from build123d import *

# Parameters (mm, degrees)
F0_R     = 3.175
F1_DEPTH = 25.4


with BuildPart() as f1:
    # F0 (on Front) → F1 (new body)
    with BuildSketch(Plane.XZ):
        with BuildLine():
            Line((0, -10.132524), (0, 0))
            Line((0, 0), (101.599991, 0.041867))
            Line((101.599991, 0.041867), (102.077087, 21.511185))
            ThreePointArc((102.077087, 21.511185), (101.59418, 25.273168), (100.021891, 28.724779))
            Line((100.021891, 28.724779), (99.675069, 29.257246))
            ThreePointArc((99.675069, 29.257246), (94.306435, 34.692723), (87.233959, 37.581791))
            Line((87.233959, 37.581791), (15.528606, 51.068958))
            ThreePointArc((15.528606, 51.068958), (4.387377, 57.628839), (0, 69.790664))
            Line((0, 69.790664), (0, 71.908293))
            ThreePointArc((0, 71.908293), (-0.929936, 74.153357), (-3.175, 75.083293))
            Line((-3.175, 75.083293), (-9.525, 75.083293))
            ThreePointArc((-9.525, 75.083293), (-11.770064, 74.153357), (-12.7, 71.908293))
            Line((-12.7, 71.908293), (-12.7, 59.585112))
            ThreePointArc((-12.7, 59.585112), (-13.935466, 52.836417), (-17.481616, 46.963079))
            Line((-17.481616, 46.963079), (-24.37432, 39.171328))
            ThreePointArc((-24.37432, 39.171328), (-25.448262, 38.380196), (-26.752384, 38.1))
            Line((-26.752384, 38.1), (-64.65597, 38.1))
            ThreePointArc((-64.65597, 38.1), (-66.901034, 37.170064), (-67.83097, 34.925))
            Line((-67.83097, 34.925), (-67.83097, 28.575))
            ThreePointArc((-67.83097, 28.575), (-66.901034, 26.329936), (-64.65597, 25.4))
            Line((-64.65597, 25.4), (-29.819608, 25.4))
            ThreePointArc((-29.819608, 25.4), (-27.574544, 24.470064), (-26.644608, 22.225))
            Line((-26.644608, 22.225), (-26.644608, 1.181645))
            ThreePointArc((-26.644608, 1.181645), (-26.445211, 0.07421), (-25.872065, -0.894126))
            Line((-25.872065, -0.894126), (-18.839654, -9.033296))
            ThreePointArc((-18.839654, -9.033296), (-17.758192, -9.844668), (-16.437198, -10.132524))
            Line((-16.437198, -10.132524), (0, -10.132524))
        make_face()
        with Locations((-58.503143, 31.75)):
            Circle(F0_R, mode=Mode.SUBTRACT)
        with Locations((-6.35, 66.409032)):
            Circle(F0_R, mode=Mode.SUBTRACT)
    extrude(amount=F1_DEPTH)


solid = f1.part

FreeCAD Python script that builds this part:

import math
import FreeCAD as App
import Part
import Sketcher

V = App.Vector
Q = App.Units.Quantity

doc = App.newDocument("Part")
body = doc.addObject("PartDesign::Body", "Body")

# Sketch on XZ plane
sketch1 = doc.addObject("Sketcher::SketchObject", "Sketch")
body.addObject(sketch1)
sketch1.AttachmentSupport = (doc.XZ_Plane, [""])
sketch1.MapMode = "FlatFace"
sketch1.addGeometry(Part.LineSegment(V(0, -10.132524, 0), V(0, 0, 0)), False)
sketch1.addGeometry(Part.LineSegment(V(0, 0, 0), V(101.599991, 0.041867, 0)), False)
sketch1.addGeometry(Part.LineSegment(V(101.599991, 0.041867, 0), V(102.077087, 21.511185, 0)), False)
sketch1.addGeometry(Part.ArcOfCircle(Part.Circle(V(89.380217, 21.793337, 0), V(0, 0, 1), 12.700004), math.radians(-1.273026), math.radians(33.078164)), False)
sketch1.addGeometry(Part.LineSegment(V(100.021891, 28.724779, 0), V(99.675069, 29.257246, 0)), False)
sketch1.addGeometry(Part.ArcOfCircle(Part.Circle(V(83.712568, 18.86009, 0), V(0, 0, 1), 19.049995), math.radians(33.078163), math.radians(79.347614)), False)
sketch1.addGeometry(Part.LineSegment(V(87.233959, 37.581791, 0), V(15.528606, 51.068958, 0)), False)
sketch1.addGeometry(Part.ArcOfCircle(Part.Circle(V(19.049999, 69.790664, 0), V(0, 0, 1), 19.049999), math.radians(179.999999), math.radians(259.34761)), False)
sketch1.addGeometry(Part.LineSegment(V(0, 69.790664, 0), V(0, 71.908293, 0)), False)
sketch1.addGeometry(Part.ArcOfCircle(Part.Circle(V(-3.175, 71.908293, 0), V(0, 0, 1), 3.175), math.radians(0.000002), math.radians(89.999998)), False)
sketch1.addGeometry(Part.LineSegment(V(-3.175, 75.083293, 0), V(-9.525, 75.083293, 0)), False)
sketch1.addGeometry(Part.ArcOfCircle(Part.Circle(V(-9.525, 71.908293, 0), V(0, 0, 1), 3.175), math.radians(90.000002), math.radians(179.999998)), False)
sketch1.addGeometry(Part.LineSegment(V(-12.7, 71.908293, 0), V(-12.7, 59.585112, 0)), False)
sketch1.addGeometry(Part.ArcOfCircle(Part.Circle(V(-31.749998, 59.585111, 0), V(0, 0, 1), 19.049998), math.radians(-41.496473), math.radians(0.000003)), False)
sketch1.addGeometry(Part.LineSegment(V(-17.481616, 46.963079, 0), V(-24.37432, 39.171328, 0)), False)
sketch1.addGeometry(Part.ArcOfCircle(Part.Circle(V(-26.752384, 41.275, 0), V(0, 0, 1), 3.175), math.radians(-89.999994), math.radians(-41.496469)), False)
sketch1.addGeometry(Part.LineSegment(V(-26.752384, 38.1, 0), V(-64.65597, 38.1, 0)), False)
sketch1.addGeometry(Part.ArcOfCircle(Part.Circle(V(-64.65597, 34.925, 0), V(0, 0, 1), 3.175), math.radians(90.000002), math.radians(179.999998)), False)
sketch1.addGeometry(Part.LineSegment(V(-67.83097, 34.925, 0), V(-67.83097, 28.575, 0)), False)
sketch1.addGeometry(Part.ArcOfCircle(Part.Circle(V(-64.65597, 28.575, 0), V(0, 0, 1), 3.175), math.radians(-179.999998), math.radians(-90.000002)), False)
sketch1.addGeometry(Part.LineSegment(V(-64.65597, 25.4, 0), V(-29.819608, 25.4, 0)), False)
sketch1.addGeometry(Part.ArcOfCircle(Part.Circle(V(-29.819608, 22.225, 0), V(0, 0, 1), 3.175), math.radians(0.000002), math.radians(89.999998)), False)
sketch1.addGeometry(Part.LineSegment(V(-26.644608, 22.225, 0), V(-26.644608, 1.181645, 0)), False)
sketch1.addGeometry(Part.ArcOfCircle(Part.Circle(V(-23.469609, 1.181645, 0), V(0, 0, 1), 3.174999), math.radians(179.999992), math.radians(220.827682)), False)
sketch1.addGeometry(Part.LineSegment(V(-25.872065, -0.894126, 0), V(-18.839654, -9.033296, 0)), False)
sketch1.addGeometry(Part.ArcOfCircle(Part.Circle(V(-16.437199, -6.957526, 0), V(0, 0, 1), 3.174998), math.radians(-139.172317), math.radians(-89.999989)), False)
sketch1.addGeometry(Part.LineSegment(V(-16.437198, -10.132524, 0), V(0, -10.132524, 0)), False)
sketch1.addGeometry(Part.Circle(V(-58.503143, 31.75, 0), V(0, 0, 1), 3.175), False)
sketch1.addGeometry(Part.Circle(V(-6.35, 66.409032, 0), V(0, 0, 1), 3.175), False)
sketch1.addConstraint(Sketcher.Constraint("Coincident", 0, 2, 1, 1))
sketch1.addConstraint(Sketcher.Constraint("Coincident", 1, 2, 2, 1))
sketch1.addConstraint(Sketcher.Constraint("Coincident", 2, 2, 3, 1))
sketch1.addConstraint(Sketcher.Constraint("Coincident", 3, 2, 4, 1))
sketch1.addConstraint(Sketcher.Constraint("Coincident", 4, 2, 5, 1))
sketch1.addConstraint(Sketcher.Constraint("Coincident", 5, 2, 6, 1))
sketch1.addConstraint(Sketcher.Constraint("Coincident", 6, 2, 7, 2))
sketch1.addConstraint(Sketcher.Constraint("Coincident", 7, 1, 8, 1))
sketch1.addConstraint(Sketcher.Constraint("Coincident", 8, 2, 9, 1))
sketch1.addConstraint(Sketcher.Constraint("Coincident", 9, 2, 10, 1))
sketch1.addConstraint(Sketcher.Constraint("Coincident", 10, 2, 11, 1))
sketch1.addConstraint(Sketcher.Constraint("Coincident", 11, 2, 12, 1))
sketch1.addConstraint(Sketcher.Constraint("Coincident", 12, 2, 13, 2))
sketch1.addConstraint(Sketcher.Constraint("Coincident", 13, 1, 14, 1))
sketch1.addConstraint(Sketcher.Constraint("Coincident", 14, 2, 15, 2))
sketch1.addConstraint(Sketcher.Constraint("Coincident", 15, 1, 16, 1))
sketch1.addConstraint(Sketcher.Constraint("Coincident", 16, 2, 17, 1))
sketch1.addConstraint(Sketcher.Constraint("Coincident", 17, 2, 18, 1))
sketch1.addConstraint(Sketcher.Constraint("Coincident", 18, 2, 19, 1))
sketch1.addConstraint(Sketcher.Constraint("Coincident", 19, 2, 20, 1))
sketch1.addConstraint(Sketcher.Constraint("Coincident", 20, 2, 21, 2))
sketch1.addConstraint(Sketcher.Constraint("Coincident", 21, 1, 22, 1))
sketch1.addConstraint(Sketcher.Constraint("Coincident", 22, 2, 23, 1))
sketch1.addConstraint(Sketcher.Constraint("Coincident", 23, 2, 24, 1))
sketch1.addConstraint(Sketcher.Constraint("Coincident", 24, 2, 25, 1))
sketch1.addConstraint(Sketcher.Constraint("Coincident", 25, 2, 26, 1))
sketch1.addConstraint(Sketcher.Constraint("Coincident", 26, 2, 0, 1))
sketch1.addConstraint(Sketcher.Constraint("Vertical", 0))
sketch1.addConstraint(Sketcher.Constraint("Vertical", 8))
sketch1.addConstraint(Sketcher.Constraint("Horizontal", 10))
sketch1.addConstraint(Sketcher.Constraint("Vertical", 12))
sketch1.addConstraint(Sketcher.Constraint("Horizontal", 16))
sketch1.addConstraint(Sketcher.Constraint("Vertical", 18))
sketch1.addConstraint(Sketcher.Constraint("Horizontal", 20))
sketch1.addConstraint(Sketcher.Constraint("Vertical", 22))
sketch1.addConstraint(Sketcher.Constraint("Horizontal", 26))
sketch1.addConstraint(Sketcher.Constraint("Coincident", 0, 2, -1, 1))
sketch1.addConstraint(Sketcher.Constraint("PointOnObject", 7, 1, -2))
sketch1.addConstraint(Sketcher.Constraint("Radius", 3, Q("0.5000002 in")))
sketch1.addConstraint(Sketcher.Constraint("Diameter", 27, Q("0.25 in")))
sketch1.addConstraint(Sketcher.Constraint("Diameter", 28, Q("0.25 in")))
sketch1.addConstraint(Sketcher.Constraint("Radius", 7, Q("0.75 in")))
sketch1.addConstraint(Sketcher.Constraint("Radius", 13, Q("0.7499999 in")))
sketch1.addConstraint(Sketcher.Constraint("Distance", 1, Q("4 in")))
sketch1.addConstraint(Sketcher.Constraint("DistanceY", -1, 1, 19, 2, Q("1 in")))
sketch1.addConstraint(Sketcher.Constraint("Radius", 9, Q("0.125 in")))
sketch1.addConstraint(Sketcher.Constraint("Radius", 11, Q("0.125 in")))
sketch1.addConstraint(Sketcher.Constraint("Radius", 15, Q("0.125 in")))
sketch1.addConstraint(Sketcher.Constraint("Radius", 17, Q("0.125 in")))
sketch1.addConstraint(Sketcher.Constraint("Radius", 19, Q("0.125 in")))
sketch1.addConstraint(Sketcher.Constraint("Radius", 21, Q("0.125 in")))
sketch1.addConstraint(Sketcher.Constraint("Radius", 23, Q("0.1249999 in")))
sketch1.addConstraint(Sketcher.Constraint("Radius", 25, Q("0.1249999 in")))
sketch1.addConstraint(Sketcher.Constraint("DistanceX", 13, 3, 7, 3, Q("1.9999999 in")))
sketch1.addConstraint(Sketcher.Constraint("DistanceX", 28, 3, 7, 3, Q("1 in")))
sketch1.addConstraint(Sketcher.Constraint("DistanceX", 10, 2, 10, 1, Q("0.25 in")))
sketch1.addConstraint(Sketcher.Constraint("DistanceY", 18, 2, 18, 1, Q("0.25 in")))
sketch1.addConstraint(Sketcher.Constraint("DistanceY", -1, 1, 15, 1, Q("1.5 in")))
sketch1.addConstraint(Sketcher.Constraint("DistanceY", 21, 3, 17, 2, Q("0.5 in")))
sketch1.addConstraint(Sketcher.Constraint("DistanceY", -1, 1, 27, 3, Q("1.25 in")))
sketch1.addConstraint(Sketcher.Constraint("DistanceX", 11, 3, 9, 2, Q("0.25 in")))
sketch1.addConstraint(Sketcher.Constraint("DistanceY", 21, 1, 15, 3, Q("0.75 in")))
sketch1.addConstraint(Sketcher.Constraint("DistanceY", 8, 2, 9, 2, Q("0.125 in")))
sketch1.addConstraint(Sketcher.Constraint("DistanceY", 11, 2, 10, 2, Q("0.125 in")))
sketch1.addConstraint(Sketcher.Constraint("DistanceX", 17, 2, 16, 2, Q("0.125 in")))
sketch1.addConstraint(Sketcher.Constraint("DistanceX", 18, 2, 19, 2, Q("0.125 in")))
sketch1.addConstraint(Sketcher.Constraint("DistanceX", 20, 2, 21, 1, Q("0.125 in")))
sketch1.addConstraint(Sketcher.Constraint("Radius", 5, 19.049995))
sketch1.addConstraint(Sketcher.Constraint("DistanceX", 20, 1, 20, 2, 34.836362))
sketch1.addConstraint(Sketcher.Constraint("DistanceY", 8, 1, 8, 2, 2.117629))
sketch1.addConstraint(Sketcher.Constraint("DistanceY", 12, 2, 12, 1, 12.323181))
sketch1.addConstraint(Sketcher.Constraint("DistanceX", 25, 3, -1, 1, 16.437199))
sketch1.addConstraint(Sketcher.Constraint("DistanceX", 3, 2, 1, 2, 1.5781))
sketch1.addConstraint(Sketcher.Constraint("DistanceX", 5, 3, 4, 2, 15.962501))
sketch1.addConstraint(Sketcher.Constraint("DistanceY", 5, 3, 5, 2, 18.721701))
sketch1.addConstraint(Sketcher.Constraint("DistanceY", 25, 3, 23, 2, 6.0634))
sketch1.addConstraint(Sketcher.Constraint("Distance", 2, 21.474618))
sketch1.addConstraint(Sketcher.Constraint("Distance", 6, 72.962739))
sketch1.addConstraint(Sketcher.Constraint("Distance", 14, 10.40292))
sketch1.addConstraint(Sketcher.Constraint("DistanceX", 16, 2, 16, 1, 37.903586))
sketch1.addConstraint(Sketcher.Constraint("DistanceX", 26, 1, 26, 2, 16.437198))
sketch1.addConstraint(Sketcher.Constraint("DistanceY", 0, 1, 0, 2, 10.132524))
sketch1.addConstraint(Sketcher.Constraint("DistanceY", 22, 2, 22, 1, 21.043355))
sketch1.addConstraint(Sketcher.Constraint("DistanceY", -1, 1, 5, 3, 18.86009))
sketch1.addConstraint(Sketcher.Constraint("DistanceY", -1, 1, 13, 3, 59.585111))
sketch1.addConstraint(Sketcher.Constraint("DistanceX", 17, 3, -1, 1, 64.65597))
sketch1.addConstraint(Sketcher.Constraint("DistanceY", -1, 1, 28, 3, 66.409032))
sketch1.addConstraint(Sketcher.Constraint("DistanceY", -1, 1, 3, 2, 28.724779))
sketch1.addConstraint(Sketcher.Constraint("DistanceX", -1, 1, 4, 2, 99.675069))
sketch1.addConstraint(Sketcher.Constraint("DistanceY", -1, 1, 6, 2, 51.068958))
sketch1.addConstraint(Sketcher.Constraint("DistanceY", -1, 1, 13, 1, 46.963079))
sketch1.addConstraint(Sketcher.Constraint("DistanceX", 14, 2, -1, 1, 24.37432))
sketch1.addConstraint(Sketcher.Constraint("DistanceX", 5, 3, 3, 3, 5.667649))
sketch1.addConstraint(Sketcher.Constraint("DistanceY", 7, 3, 9, 3, 2.117629))
sketch1.addConstraint(Sketcher.Constraint("DistanceY", 25, 3, 23, 3, 8.13917))
sketch1.addConstraint(Sketcher.Constraint("DistanceX", 27, 3, 15, 3, 31.750759))
sketch1.addConstraint(Sketcher.Constraint("DistanceY", 1, 2, 3, 3, 21.75147))
sketch1.addConstraint(Sketcher.Constraint("DistanceY", 24, 2, 25, 3, 2.07577))
pad1 = doc.addObject("PartDesign::Pad", "Pad")
body.addObject(pad1)
pad1.Profile = sketch1
pad1.Length = Q("1 in")

doc.recompute()
